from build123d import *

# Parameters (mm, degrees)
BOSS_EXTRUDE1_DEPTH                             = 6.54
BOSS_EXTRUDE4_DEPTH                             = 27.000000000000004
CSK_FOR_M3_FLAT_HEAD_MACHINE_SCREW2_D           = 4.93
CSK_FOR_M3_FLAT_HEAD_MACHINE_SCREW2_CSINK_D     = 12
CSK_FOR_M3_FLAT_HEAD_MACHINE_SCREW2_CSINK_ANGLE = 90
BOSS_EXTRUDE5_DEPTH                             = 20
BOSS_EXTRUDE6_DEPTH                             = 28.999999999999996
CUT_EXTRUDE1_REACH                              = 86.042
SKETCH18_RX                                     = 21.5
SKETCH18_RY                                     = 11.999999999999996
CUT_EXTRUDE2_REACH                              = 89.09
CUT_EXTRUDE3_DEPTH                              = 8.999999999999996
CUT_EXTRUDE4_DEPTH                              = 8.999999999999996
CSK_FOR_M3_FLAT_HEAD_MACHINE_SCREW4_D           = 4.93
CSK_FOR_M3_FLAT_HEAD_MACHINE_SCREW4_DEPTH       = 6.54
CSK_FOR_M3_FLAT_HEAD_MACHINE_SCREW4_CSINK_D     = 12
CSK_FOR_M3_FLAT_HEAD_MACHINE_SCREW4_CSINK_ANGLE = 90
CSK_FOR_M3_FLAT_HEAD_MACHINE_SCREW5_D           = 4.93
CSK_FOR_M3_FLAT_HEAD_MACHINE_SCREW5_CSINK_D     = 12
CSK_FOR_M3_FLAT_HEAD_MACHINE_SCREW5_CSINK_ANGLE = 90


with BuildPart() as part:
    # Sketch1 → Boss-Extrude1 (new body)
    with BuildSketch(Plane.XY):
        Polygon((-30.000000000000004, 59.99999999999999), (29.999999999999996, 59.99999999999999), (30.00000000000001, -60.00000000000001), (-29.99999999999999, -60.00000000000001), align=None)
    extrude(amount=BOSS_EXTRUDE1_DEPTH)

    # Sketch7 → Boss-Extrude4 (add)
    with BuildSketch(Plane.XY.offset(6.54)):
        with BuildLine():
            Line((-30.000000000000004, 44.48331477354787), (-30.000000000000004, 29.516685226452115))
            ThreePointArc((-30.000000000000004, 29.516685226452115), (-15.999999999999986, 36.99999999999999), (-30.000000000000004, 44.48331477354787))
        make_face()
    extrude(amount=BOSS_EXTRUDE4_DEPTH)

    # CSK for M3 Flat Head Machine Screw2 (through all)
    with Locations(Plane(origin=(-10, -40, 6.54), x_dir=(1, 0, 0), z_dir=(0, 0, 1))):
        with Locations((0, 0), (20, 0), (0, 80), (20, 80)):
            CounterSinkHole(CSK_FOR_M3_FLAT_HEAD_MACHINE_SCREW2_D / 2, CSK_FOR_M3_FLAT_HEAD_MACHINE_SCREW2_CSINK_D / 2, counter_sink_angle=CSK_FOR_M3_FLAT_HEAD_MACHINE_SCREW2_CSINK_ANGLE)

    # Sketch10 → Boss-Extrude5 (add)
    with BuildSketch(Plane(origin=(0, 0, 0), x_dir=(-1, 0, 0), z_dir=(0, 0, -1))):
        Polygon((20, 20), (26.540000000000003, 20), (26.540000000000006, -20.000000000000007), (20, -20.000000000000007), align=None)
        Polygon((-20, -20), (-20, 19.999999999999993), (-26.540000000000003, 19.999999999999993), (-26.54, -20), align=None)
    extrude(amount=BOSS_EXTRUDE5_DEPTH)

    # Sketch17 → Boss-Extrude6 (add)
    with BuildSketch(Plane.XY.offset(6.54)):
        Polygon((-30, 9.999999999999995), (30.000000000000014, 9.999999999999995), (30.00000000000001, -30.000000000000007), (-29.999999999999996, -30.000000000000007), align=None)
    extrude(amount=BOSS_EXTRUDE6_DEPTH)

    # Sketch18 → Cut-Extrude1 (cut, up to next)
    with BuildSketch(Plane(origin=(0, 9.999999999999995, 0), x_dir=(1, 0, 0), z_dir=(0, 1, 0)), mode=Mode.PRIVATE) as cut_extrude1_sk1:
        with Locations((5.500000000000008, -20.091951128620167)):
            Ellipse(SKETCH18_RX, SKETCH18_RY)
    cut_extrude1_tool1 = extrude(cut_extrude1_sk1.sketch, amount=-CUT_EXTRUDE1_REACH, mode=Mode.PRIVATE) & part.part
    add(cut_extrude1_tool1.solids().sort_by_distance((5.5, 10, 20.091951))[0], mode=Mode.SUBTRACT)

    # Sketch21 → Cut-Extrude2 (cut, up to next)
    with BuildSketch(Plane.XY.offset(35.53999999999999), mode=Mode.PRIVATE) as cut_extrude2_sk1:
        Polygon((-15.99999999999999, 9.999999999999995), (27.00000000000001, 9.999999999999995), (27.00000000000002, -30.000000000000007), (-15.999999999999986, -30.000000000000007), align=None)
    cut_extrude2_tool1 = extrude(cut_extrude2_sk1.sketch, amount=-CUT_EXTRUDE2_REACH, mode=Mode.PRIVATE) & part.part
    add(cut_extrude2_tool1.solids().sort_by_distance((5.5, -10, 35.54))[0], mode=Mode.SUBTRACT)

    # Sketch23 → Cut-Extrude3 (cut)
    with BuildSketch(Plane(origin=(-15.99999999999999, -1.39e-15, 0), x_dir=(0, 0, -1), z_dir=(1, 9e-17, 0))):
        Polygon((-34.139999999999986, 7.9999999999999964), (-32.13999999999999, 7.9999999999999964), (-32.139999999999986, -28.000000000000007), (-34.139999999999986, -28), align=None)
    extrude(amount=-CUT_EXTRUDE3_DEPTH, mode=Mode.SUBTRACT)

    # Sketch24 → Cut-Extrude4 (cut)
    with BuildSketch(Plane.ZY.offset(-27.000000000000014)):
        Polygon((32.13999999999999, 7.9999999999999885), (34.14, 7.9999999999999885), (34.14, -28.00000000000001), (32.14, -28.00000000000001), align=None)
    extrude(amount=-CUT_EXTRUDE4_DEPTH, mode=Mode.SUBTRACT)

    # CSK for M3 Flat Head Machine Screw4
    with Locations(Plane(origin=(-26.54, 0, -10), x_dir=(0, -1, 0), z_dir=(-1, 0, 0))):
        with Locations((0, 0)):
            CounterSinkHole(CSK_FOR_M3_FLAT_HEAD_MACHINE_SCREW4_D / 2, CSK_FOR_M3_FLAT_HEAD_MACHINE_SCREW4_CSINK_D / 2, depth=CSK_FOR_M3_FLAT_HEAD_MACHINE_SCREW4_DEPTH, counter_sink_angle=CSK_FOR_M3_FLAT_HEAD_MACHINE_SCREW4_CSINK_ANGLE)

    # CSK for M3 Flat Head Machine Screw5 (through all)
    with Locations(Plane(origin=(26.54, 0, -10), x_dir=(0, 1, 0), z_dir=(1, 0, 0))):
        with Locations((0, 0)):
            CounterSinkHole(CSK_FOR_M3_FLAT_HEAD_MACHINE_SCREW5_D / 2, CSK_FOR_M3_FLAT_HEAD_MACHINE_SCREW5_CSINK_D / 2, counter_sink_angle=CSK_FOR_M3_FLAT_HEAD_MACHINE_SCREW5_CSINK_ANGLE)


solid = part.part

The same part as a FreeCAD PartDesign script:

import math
import FreeCAD as App
import Part
import Sketcher

V = App.Vector


def add_polygon(sketch, points):
    """Adds a closed chain of lines whose ends are joined by coincident constraints."""
    first, n = sketch.GeometryCount, len(points)
    for a, b in zip(points, points[1:] + points[:1]):
        sketch.addGeometry(Part.LineSegment(App.Vector(*a, 0), App.Vector(*b, 0)), False)
    for i in range(n):
        sketch.addConstraint(Sketcher.Constraint("Coincident", first + i, 2, first + (i + 1) % n, 1))

doc = App.newDocument("Part")
body = doc.addObject("PartDesign::Body", "Body")

sketch1 = doc.addObject("Sketcher::SketchObject", "Sketch")
body.addObject(sketch1)
sketch1.AttachmentSupport = (doc.XY_Plane, [""])
sketch1.MapMode = "FlatFace"
add_polygon(sketch1, [(30, 60), (-30, 60), (-30, -60), (30, -60)])
sketch1.addConstraint(Sketcher.Constraint("Horizontal", 0))
sketch1.addConstraint(Sketcher.Constraint("Vertical", 1))
sketch1.addConstraint(Sketcher.Constraint("Horizontal", 2))
sketch1.addConstraint(Sketcher.Constraint("Vertical", 3))
sketch1.addConstraint(Sketcher.Constraint("Symmetric", 0, 2, 2, 2, -1, 1))
sketch1.addConstraint(Sketcher.Constraint("DistanceX", 0, 2, 0, 1, 60.0))
sketch1.addConstraint(Sketcher.Constraint("DistanceY", 1, 2, 1, 1, 120.0))
pad1 = doc.addObject("PartDesign::Pad", "Pad")
body.addObject(pad1)
pad1.Profile = sketch1
pad1.Length = 6.54

sketch2 = doc.addObject("Sketcher::SketchObject", "Sketch001")
body.addObject(sketch2)
sketch2.AttachmentSupport = (doc.XY_Plane, [""])
sketch2.MapMode = "FlatFace"
sketch2.AttachmentOffset = App.Placement(V(0, 0, 6.54), App.Rotation())
sketch2.addGeometry(Part.LineSegment(V(-30, 44, 0), V(-30, 30, 0)), False)
sketch2.addGeometry(Part.ArcOfCircle(Part.Circle(V(-25, 37, 0), V(0, 0, 1), 9), math.radians(-124), math.radians(124)), False)
sketch2.addConstraint(Sketcher.Constraint("Coincident", 0, 1, 1, 2))
sketch2.addConstraint(Sketcher.Constraint("Coincident", 1, 1, 0, 2))
sketch2.addConstraint(Sketcher.Constraint("Vertical", 0))
sketch2.addConstraint(Sketcher.Constraint("Radius", 1, 9.0))
sketch2.addConstraint(Sketcher.Constraint("DistanceX", 1, 3, -1, 1, 25.0))
sketch2.addConstraint(Sketcher.Constraint("DistanceY", -1, 1, 1, 3, 37.0))
sketch2.addConstraint(Sketcher.Constraint("DistanceX", 0, 1, -1, 1, 30.0))
pad2 = doc.addObject("PartDesign::Pad", "Pad001")
body.addObject(pad2)
pad2.Profile = sketch2
pad2.Length = 27

sketch3 = doc.addObject("Sketcher::SketchObject", "Sketch002")
body.addObject(sketch3)
sketch3.AttachmentSupport = (doc.XY_Plane, [""])
sketch3.MapMode = "FlatFace"
sketch3.AttachmentOffset = App.Placement(V(0, 0, 6.54), App.Rotation())
sketch3.addGeometry(Part.Circle(V(-10, -40, 0), V(0, 0, 1), 2.5), False)
sketch3.addGeometry(Part.Circle(V(10, -40, 0), V(0, 0, 1), 2.5), False)
sketch3.addGeometry(Part.Circle(V(-10, 40, 0), V(0, 0, 1), 2.5), False)
sketch3.addGeometry(Part.Circle(V(10, 40, 0), V(0, 0, 1), 2.5), False)
sketch3.addConstraint(Sketcher.Constraint("Equal", 0, 1))
sketch3.addConstraint(Sketcher.Constraint("Equal", 1, 2))
sketch3.addConstraint(Sketcher.Constraint("Equal", 2, 3))
sketch3.addConstraint(Sketcher.Constraint("Symmetric", 1, 3, 2, 3, -1, 1))
sketch3.addConstraint(Sketcher.Constraint("Symmetric", 0, 3, 3, 3, -1, 1))
sketch3.addConstraint(Sketcher.Constraint("Symmetric", 0, 3, 1, 3, -2))
sketch3.addConstraint(Sketcher.Constraint("Diameter", 0, 4.93))
sketch3.addConstraint(Sketcher.Constraint("DistanceX", 0, 3, -1, 1, 10.0))
sketch3.addConstraint(Sketcher.Constraint("DistanceY", 0, 3, -1, 1, 40.0))
doc.recompute()
hole = doc.addObject("PartDesign::Hole", "Hole")
body.addObject(hole)
hole.Profile = sketch3
hole.ThreadType = "None"
hole.Diameter = 4.93
hole.DepthType = "ThroughAll"
hole.HoleCutType = "Countersink"
hole.HoleCutDiameter = 12
hole.HoleCutCountersinkAngle = 90

sketch4 = doc.addObject("Sketcher::SketchObject", "Sketch003")
body.addObject(sketch4)
sketch4.AttachmentSupport = (doc.XY_Plane, [""])
sketch4.MapMode = "FlatFace"
add_polygon(sketch4, [(-27, 20), (-20, 20), (-20, -20), (-27, -20)])
add_polygon(sketch4, [(20, -20), (20, 20), (27, 20), (27, -20)])
sketch4.addConstraint(Sketcher.Constraint("Horizontal", 0))
sketch4.addConstraint(Sketcher.Constraint("Vertical", 1))
sketch4.addConstraint(Sketcher.Constraint("Horizontal", 2))
sketch4.addConstraint(Sketcher.Constraint("Vertical", 3))
sketch4.addConstraint(Sketcher.Constraint("Vertical", 4))
sketch4.addConstraint(Sketcher.Constraint("Horizontal", 5))
sketch4.addConstraint(Sketcher.Constraint("Vertical", 6))
sketch4.addConstraint(Sketcher.Constraint("Horizontal", 7))
sketch4.addConstraint(Sketcher.Constraint("Symmetric", 1, 2, 4, 2, -1, 1))
sketch4.addConstraint(Sketcher.Constraint("Symmetric", 3, 2, 6, 2, -1, 1))
sketch4.addConstraint(Sketcher.Constraint("Horizontal", 3, 2, 4, 2))
sketch4.addConstraint(Sketcher.Constraint("DistanceY", 1, 2, 1, 1, 40.0))
sketch4.addConstraint(Sketcher.Constraint("DistanceX", 0, 2, -1, 1, 20.0))
sketch4.addConstraint(Sketcher.Constraint("DistanceX", 0, 1, 0, 2, 6.54))
pad3 = doc.addObject("PartDesign::Pad", "Pad002")
body.addObject(pad3)
pad3.Profile = sketch4
pad3.Length = 20
pad3.Reversed = True

sketch5 = doc.addObject("Sketcher::SketchObject", "Sketch004")
body.addObject(sketch5)
sketch5.AttachmentSupport = (doc.XY_Plane, [""])
sketch5.MapMode = "FlatFace"
sketch5.AttachmentOffset = App.Placement(V(0, 0, 6.54), App.Rotation())
add_polygon(sketch5, [(30, 10), (-30, 10), (-30, -30), (30, -30)])
sketch5.addConstraint(Sketcher.Constraint("Horizontal", 0))
sketch5.addConstraint(Sketcher.Constraint("Vertical", 1))
sketch5.addConstraint(Sketcher.Constraint("Horizontal", 2))
sketch5.addConstraint(Sketcher.Constraint("Vertical", 3))
sketch5.addConstraint(Sketcher.Constraint("DistanceX", 0, 2, 0, 1, 60.0))
sketch5.addConstraint(Sketcher.Constraint("DistanceY", 1, 2, 1, 1, 40.0))
sketch5.addConstraint(Sketcher.Constraint("DistanceX", 0, 2, -1, 1, 30.0))
sketch5.addConstraint(Sketcher.Constraint("DistanceY", -1, 1, 0, 2, 10.0))
pad4 = doc.addObject("PartDesign::Pad", "Pad003")
body.addObject(pad4)
pad4.Profile = sketch5
pad4.Length = 29

sketch6 = doc.addObject("Sketcher::SketchObject", "Sketch005")
body.addObject(sketch6)
sketch6.AttachmentSupport = (doc.XZ_Plane, [""])
sketch6.MapMode = "FlatFace"
sketch6.AttachmentOffset = App.Placement(V(0, 0, -10), App.Rotation())
sketch6.addGeometry(Part.Ellipse(V(27, 20.091951, 0), V(5.5, 32.091951, 0), V(5.5, 20.091951, 0)), False)
sketch6.addConstraint(Sketcher.Constraint("Block", 0))
pocket1 = doc.addObject("PartDesign::Pocket", "Pocket")
body.addObject(pocket1)
pocket1.Profile = sketch6
pocket1.Type = "UpToFirst"
pocket1.Reversed = True

sketch7 = doc.addObject("Sketcher::SketchObject", "Sketch006")
body.addObject(sketch7)
sketch7.AttachmentSupport = (doc.XY_Plane, [""])
sketch7.MapMode = "FlatFace"
sketch7.AttachmentOffset = App.Placement(V(0, 0, 35.54), App.Rotation())
add_polygon(sketch7, [(27, 10), (-16, 10), (-16, -30), (27, -30)])
sketch7.addConstraint(Sketcher.Constraint("Horizontal", 0))
sketch7.addConstraint(Sketcher.Constraint("Vertical", 1))
sketch7.addConstraint(Sketcher.Constraint("Horizontal", 2))
sketch7.addConstraint(Sketcher.Constraint("Vertical", 3))
sketch7.addConstraint(Sketcher.Constraint("DistanceX", 0, 2, 0, 1, 43.0))
sketch7.addConstraint(Sketcher.Constraint("DistanceY", 1, 2, 1, 1, 40.0))
sketch7.addConstraint(Sketcher.Constraint("DistanceX", 0, 2, -1, 1, 16.0))
sketch7.addConstraint(Sketcher.Constraint("DistanceY", -1, 1, 0, 2, 10.0))
pocket2 = doc.addObject("PartDesign::Pocket", "Pocket001")
body.addObject(pocket2)
pocket2.Profile = sketch7
pocket2.Length = 15.448049

sketch8 = doc.addObject("Sketcher::SketchObject", "Sketch007")
body.addObject(sketch8)
sketch8.AttachmentSupport = (doc.YZ_Plane, [""])
sketch8.MapMode = "FlatFace"
sketch8.AttachmentOffset = App.Placement(V(0, 0, -16), App.Rotation())
add_polygon(sketch8, [(8, 32.1), (8, 34.1), (-28, 34.1), (-28, 32.1)])
sketch8.addConstraint(Sketcher.Constraint("Vertical", 0))
sketch8.addConstraint(Sketcher.Constraint("Horizontal", 1))
sketch8.addConstraint(Sketcher.Constraint("Vertical", 2))
sketch8.addConstraint(Sketcher.Constraint("Horizontal", 3))
sketch8.addConstraint(Sketcher.Constraint("DistanceX", 1, 2, 1, 1, 36.0))
sketch8.addConstraint(Sketcher.Constraint("DistanceY", 0, 1, 0, 2, 2.0))
sketch8.addConstraint(Sketcher.Constraint("DistanceX", -1, 1, 0, 2, 8.0))
sketch8.addConstraint(Sketcher.Constraint("DistanceY", -1, 1, 0, 2, 34.14))
pocket3 = doc.addObject("PartDesign::Pocket", "Pocket002")
body.addObject(pocket3)
pocket3.Profile = sketch8
pocket3.Length = 9

sketch9 = doc.addObject("Sketcher::SketchObject", "Sketch008")
body.addObject(sketch9)
sketch9.AttachmentSupport = (doc.YZ_Plane, [""])
sketch9.MapMode = "FlatFace"
sketch9.AttachmentOffset = App.Placement(V(0, 0, 27), App.Rotation())
add_polygon(sketch9, [(8, 34.1), (8, 32.1), (-28, 32.1), (-28, 34.1)])
sketch9.addConstraint(Sketcher.Constraint("Vertical", 0))
sketch9.addConstraint(Sketcher.Constraint("Horizontal", 1))
sketch9.addConstraint(Sketcher.Constraint("Vertical", 2))
sketch9.addConstraint(Sketcher.Constraint("Horizontal", 3))
sketch9.addConstraint(Sketcher.Constraint("DistanceX", 1, 2, 1, 1, 36.0))
sketch9.addConstraint(Sketcher.Constraint("DistanceY", 0, 2, 0, 1, 2.0))
sketch9.addConstraint(Sketcher.Constraint("DistanceX", -1, 1, 0, 2, 8.0))
sketch9.addConstraint(Sketcher.Constraint("DistanceY", -1, 1, 0, 2, 32.14))
pocket4 = doc.addObject("PartDesign::Pocket", "Pocket003")
body.addObject(pocket4)
pocket4.Profile = sketch9
pocket4.Length = 9
pocket4.Reversed = True

sketch10 = doc.addObject("Sketcher::SketchObject", "Sketch009")
body.addObject(sketch10)
sketch10.AttachmentSupport = (doc.YZ_Plane, [""])
sketch10.MapMode = "FlatFace"
sketch10.AttachmentOffset = App.Placement(V(0, 0, -26.54), App.Rotation())
sketch10.addGeometry(Part.Circle(V(0, -10, 0), V(0, 0, 1), 2.5), False)
sketch10.addConstraint(Sketcher.Constraint("PointOnObject", 0, 3, -2))
sketch10.addConstraint(Sketcher.Constraint("Diameter", 0, 4.93))
sketch10.addConstraint(Sketcher.Constraint("DistanceY", 0, 3, -1, 1, 10.0))
doc.recompute()
hole2 = doc.addObject("PartDesign::Hole", "Hole001")
body.addObject(hole2)
hole2.Profile = sketch10
hole2.ThreadType = "None"
hole2.Diameter = 4.93
hole2.DepthType = "Dimension"
hole2.Depth = 6.54
hole2.DrillPoint = "Flat"
hole2.HoleCutType = "Countersink"
hole2.HoleCutDiameter = 12
hole2.HoleCutCountersinkAngle = 90
hole2.Reversed = True

sketch11 = doc.addObject("Sketcher::SketchObject", "Sketch010")
body.addObject(sketch11)
sketch11.AttachmentSupport = (doc.YZ_Plane, [""])
sketch11.MapMode = "FlatFace"
sketch11.AttachmentOffset = App.Placement(V(0, 0, 26.54), App.Rotation())
sketch11.addGeometry(Part.Circle(V(0, -10, 0), V(0, 0, 1), 2.5), False)
sketch11.addConstraint(Sketcher.Constraint("PointOnObject", 0, 3, -2))
sketch11.addConstraint(Sketcher.Constraint("Diameter", 0, 4.93))
sketch11.addConstraint(Sketcher.Constraint("DistanceY", 0, 3, -1, 1, 10.0))
doc.recompute()
hole3 = doc.addObject("PartDesign::Hole", "Hole002")
body.addObject(hole3)
hole3.Profile = sketch11
hole3.ThreadType = "None"
hole3.Diameter = 4.93
hole3.DepthType = "ThroughAll"
hole3.HoleCutType = "Countersink"
hole3.HoleCutDiameter = 12
hole3.HoleCutCountersinkAngle = 90

doc.recompute()
